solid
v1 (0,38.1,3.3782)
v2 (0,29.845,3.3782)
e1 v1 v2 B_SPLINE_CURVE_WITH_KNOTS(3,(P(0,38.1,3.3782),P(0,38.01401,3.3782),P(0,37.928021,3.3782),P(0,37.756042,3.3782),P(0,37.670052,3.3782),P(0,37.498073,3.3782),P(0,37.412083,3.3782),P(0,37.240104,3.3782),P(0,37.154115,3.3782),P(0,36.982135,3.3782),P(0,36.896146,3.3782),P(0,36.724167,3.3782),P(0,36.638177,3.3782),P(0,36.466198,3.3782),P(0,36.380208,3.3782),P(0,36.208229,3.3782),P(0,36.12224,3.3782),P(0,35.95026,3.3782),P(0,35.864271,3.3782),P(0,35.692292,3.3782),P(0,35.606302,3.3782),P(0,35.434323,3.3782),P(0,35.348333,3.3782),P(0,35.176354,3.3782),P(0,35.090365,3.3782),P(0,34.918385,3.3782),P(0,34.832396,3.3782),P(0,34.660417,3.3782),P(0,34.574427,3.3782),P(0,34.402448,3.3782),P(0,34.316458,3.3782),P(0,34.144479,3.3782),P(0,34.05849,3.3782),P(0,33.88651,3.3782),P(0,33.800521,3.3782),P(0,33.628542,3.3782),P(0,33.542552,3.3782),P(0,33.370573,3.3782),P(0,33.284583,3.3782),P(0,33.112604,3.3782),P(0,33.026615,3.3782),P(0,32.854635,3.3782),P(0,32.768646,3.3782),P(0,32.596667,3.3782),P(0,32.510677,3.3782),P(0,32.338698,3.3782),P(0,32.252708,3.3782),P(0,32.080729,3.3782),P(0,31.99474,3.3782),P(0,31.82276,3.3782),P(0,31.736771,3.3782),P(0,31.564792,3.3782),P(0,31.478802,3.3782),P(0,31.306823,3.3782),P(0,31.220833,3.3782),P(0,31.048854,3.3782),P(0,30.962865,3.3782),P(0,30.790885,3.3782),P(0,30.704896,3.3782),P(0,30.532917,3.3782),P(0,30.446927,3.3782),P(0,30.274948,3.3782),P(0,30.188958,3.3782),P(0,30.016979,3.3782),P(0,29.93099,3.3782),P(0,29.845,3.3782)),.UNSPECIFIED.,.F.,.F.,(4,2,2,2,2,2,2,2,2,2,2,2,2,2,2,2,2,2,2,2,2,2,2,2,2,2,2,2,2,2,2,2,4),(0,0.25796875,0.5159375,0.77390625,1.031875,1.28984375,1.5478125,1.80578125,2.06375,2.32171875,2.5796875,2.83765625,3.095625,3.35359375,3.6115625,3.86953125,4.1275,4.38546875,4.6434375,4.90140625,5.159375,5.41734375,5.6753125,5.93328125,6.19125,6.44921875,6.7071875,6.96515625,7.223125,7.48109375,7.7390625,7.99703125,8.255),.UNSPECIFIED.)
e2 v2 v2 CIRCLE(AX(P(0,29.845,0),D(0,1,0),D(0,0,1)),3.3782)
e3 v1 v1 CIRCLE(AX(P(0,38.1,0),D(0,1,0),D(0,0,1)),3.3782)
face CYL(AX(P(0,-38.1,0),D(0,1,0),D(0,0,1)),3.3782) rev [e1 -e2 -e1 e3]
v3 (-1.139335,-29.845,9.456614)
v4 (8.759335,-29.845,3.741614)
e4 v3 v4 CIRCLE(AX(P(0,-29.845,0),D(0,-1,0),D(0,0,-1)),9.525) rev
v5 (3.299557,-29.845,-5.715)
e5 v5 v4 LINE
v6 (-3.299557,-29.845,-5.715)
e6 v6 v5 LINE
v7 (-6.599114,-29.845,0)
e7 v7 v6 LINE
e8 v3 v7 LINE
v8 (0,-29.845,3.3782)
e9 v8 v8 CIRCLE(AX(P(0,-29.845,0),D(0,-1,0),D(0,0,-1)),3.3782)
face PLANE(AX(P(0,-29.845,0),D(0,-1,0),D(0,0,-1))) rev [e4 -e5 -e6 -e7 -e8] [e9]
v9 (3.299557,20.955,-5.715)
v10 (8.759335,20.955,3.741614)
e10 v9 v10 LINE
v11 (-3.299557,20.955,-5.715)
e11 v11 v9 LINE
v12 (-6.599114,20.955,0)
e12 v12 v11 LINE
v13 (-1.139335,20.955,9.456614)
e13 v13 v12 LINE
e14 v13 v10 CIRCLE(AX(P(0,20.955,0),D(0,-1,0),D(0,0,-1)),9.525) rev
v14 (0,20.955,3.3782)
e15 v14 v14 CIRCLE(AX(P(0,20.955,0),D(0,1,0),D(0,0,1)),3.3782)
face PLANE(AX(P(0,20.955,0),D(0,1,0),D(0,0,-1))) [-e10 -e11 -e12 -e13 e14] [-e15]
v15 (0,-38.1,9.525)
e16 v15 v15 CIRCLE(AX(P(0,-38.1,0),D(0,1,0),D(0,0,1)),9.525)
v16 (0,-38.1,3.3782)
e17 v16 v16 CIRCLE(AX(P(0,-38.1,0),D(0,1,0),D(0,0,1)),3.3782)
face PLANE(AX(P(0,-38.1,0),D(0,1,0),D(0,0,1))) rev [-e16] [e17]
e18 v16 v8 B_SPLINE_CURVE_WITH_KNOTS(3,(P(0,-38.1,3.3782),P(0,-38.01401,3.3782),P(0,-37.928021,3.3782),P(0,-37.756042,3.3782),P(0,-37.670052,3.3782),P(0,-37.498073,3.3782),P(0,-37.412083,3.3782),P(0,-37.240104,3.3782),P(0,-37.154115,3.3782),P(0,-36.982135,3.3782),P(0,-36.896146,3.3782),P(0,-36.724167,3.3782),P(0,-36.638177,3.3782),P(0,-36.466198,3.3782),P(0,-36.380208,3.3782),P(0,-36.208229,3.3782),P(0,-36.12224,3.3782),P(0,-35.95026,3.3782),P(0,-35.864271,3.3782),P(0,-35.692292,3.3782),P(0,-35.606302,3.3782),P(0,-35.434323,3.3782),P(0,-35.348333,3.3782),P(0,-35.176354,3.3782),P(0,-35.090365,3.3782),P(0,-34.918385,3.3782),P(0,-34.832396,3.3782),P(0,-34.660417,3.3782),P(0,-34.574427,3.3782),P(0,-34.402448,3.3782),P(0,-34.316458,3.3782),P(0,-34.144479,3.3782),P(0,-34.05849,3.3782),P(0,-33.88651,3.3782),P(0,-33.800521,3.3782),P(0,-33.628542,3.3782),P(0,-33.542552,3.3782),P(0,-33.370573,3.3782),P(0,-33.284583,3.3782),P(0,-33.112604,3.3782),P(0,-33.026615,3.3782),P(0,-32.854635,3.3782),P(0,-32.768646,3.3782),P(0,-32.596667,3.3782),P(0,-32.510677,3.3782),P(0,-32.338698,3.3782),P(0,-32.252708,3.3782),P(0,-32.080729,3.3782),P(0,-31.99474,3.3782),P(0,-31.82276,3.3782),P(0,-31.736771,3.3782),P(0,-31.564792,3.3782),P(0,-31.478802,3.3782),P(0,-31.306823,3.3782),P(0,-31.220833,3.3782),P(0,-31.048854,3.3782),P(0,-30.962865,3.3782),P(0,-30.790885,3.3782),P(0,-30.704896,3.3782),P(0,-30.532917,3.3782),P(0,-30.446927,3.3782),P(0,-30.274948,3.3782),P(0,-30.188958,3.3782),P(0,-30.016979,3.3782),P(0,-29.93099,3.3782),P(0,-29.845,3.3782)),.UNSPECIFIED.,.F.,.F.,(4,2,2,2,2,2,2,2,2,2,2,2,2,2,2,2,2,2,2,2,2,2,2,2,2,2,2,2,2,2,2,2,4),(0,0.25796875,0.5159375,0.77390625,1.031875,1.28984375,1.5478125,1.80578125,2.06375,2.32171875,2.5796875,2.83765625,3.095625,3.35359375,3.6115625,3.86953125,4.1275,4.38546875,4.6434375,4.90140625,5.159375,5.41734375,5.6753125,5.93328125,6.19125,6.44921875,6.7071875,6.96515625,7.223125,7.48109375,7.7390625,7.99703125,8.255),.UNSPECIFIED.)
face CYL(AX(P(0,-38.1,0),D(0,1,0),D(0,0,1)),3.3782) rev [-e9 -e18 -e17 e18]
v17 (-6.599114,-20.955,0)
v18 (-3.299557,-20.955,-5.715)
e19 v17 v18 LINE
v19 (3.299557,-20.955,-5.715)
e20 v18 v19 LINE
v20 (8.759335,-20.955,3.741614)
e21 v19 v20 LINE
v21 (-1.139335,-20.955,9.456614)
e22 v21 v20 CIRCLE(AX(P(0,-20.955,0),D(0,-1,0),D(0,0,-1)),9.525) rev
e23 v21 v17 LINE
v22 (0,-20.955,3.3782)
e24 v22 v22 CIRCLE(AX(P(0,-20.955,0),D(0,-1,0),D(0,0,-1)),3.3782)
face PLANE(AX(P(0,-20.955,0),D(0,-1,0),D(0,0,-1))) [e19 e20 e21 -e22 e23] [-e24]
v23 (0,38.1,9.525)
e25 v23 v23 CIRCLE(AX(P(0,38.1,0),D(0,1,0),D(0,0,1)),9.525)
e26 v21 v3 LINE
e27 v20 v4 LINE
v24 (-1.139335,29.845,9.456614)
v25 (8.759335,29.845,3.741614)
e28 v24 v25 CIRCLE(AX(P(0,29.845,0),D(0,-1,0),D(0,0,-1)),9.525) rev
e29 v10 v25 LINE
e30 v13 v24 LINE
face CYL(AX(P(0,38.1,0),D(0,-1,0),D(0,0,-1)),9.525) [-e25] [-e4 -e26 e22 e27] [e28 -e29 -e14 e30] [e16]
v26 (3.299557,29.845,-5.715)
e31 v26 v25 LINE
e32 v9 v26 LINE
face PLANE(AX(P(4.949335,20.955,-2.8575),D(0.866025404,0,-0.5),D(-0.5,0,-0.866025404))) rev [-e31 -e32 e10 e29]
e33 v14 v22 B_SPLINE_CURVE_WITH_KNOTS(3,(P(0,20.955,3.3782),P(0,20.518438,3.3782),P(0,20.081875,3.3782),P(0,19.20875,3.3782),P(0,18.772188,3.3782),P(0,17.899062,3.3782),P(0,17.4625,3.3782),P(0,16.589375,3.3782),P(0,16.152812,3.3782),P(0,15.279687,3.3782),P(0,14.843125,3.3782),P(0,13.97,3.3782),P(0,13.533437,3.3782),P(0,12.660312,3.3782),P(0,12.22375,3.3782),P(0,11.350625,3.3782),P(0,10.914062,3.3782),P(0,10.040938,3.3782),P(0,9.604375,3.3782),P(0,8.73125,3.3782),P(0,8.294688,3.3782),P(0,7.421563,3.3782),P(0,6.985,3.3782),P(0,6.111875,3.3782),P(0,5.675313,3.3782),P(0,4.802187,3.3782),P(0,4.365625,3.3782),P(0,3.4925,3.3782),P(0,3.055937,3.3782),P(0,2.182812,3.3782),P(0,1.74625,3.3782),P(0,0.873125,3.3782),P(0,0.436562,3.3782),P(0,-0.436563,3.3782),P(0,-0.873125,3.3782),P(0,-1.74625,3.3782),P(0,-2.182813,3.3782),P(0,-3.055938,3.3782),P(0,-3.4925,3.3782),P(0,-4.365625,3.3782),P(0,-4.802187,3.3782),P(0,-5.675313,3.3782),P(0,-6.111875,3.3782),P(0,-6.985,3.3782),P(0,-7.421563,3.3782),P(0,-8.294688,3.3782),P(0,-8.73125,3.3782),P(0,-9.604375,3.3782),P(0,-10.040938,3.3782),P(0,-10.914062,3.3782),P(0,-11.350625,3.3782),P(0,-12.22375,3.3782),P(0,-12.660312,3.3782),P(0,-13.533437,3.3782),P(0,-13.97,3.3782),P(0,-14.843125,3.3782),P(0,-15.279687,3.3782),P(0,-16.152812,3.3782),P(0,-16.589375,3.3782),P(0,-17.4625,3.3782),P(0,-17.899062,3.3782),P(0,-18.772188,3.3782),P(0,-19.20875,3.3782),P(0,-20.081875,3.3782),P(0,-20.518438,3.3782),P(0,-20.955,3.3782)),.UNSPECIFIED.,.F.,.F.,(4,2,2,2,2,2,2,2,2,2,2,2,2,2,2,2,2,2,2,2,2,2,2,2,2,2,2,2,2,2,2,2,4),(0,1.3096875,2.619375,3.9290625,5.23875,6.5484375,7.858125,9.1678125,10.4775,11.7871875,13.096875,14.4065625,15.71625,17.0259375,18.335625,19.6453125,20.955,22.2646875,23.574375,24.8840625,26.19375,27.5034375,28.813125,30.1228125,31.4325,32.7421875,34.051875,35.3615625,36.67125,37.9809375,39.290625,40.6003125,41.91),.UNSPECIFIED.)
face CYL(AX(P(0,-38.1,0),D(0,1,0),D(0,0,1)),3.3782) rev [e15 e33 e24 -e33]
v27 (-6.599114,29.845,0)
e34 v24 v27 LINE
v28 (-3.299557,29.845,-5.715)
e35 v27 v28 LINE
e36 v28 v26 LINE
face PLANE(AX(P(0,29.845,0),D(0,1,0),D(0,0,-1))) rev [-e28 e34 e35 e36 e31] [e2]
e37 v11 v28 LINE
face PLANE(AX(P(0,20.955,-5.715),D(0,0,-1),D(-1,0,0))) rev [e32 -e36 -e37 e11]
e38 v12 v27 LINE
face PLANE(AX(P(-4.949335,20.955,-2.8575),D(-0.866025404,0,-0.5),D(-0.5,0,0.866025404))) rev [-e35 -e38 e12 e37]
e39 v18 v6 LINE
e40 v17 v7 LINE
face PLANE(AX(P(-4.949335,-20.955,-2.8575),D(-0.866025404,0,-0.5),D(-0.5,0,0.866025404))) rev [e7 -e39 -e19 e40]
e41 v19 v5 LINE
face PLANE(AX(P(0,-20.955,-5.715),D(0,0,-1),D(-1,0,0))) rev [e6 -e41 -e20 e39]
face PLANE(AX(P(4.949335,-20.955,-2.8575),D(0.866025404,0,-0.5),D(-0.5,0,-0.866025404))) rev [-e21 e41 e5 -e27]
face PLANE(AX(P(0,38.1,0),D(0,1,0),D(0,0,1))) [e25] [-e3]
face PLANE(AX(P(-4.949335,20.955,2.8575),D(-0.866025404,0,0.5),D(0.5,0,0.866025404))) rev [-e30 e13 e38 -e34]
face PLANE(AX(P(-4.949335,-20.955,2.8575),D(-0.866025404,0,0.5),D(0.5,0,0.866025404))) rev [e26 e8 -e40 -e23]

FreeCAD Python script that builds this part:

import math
import FreeCAD as App
import Part
import Sketcher
from FreeCAD import Vector
Q = App.Units.Quantity

doc = App.newDocument("Part")
body = doc.addObject("PartDesign::Body", "Body")

# Sketch on XZ plane
sketch1 = body.newObject("Sketcher::SketchObject", "Sketch")
sketch1.AttachmentSupport = (doc.getObject("XZ_Plane"), [""])
sketch1.MapMode = "FlatFace"
sketch1.addGeometry(Part.Circle(Vector(0, 0, 0), Vector(0, 0, 1), 10), False)
sketch1.addConstraint(Sketcher.Constraint("Coincident", 0, 3, -1, 1))
sketch1.addConstraint(Sketcher.Constraint("Diameter", 0, Q("0.75 in")))
pad1 = body.newObject("PartDesign::Pad", "Pad")
pad1.Profile = sketch1
pad1.Length = Q("3 in")
pad1.Midplane = True

# Sketch on XZ plane
sketch2 = body.newObject("Sketcher::SketchObject", "Sketch001")
sketch2.AttachmentSupport = (doc.getObject("XZ_Plane"), [""])
sketch2.MapMode = "FlatFace"
sketch2.AttachmentOffset = App.Placement(Vector(0, 0, 1 * 25.4), App.Rotation())
sketch2.addGeometry(Part.LineSegment(Vector(3.3, -5.7, 0), Vector(6.6, 0, 0)), False)
sketch2.addGeometry(Part.LineSegment(Vector(6.6, 0, 0), Vector(8.8, 3.7, 0)), False)
sketch2.addGeometry(Part.ArcOfCircle(Part.Circle(Vector(0, 0, 0), Vector(0, 0, 1), 9.5), math.radians(23), math.radians(97)), False)
sketch2.addGeometry(Part.LineSegment(Vector(-1.1, 9.5, 0), Vector(-3.3, 5.7, 0)), False)
sketch2.addGeometry(Part.LineSegment(Vector(-3.3, 5.7, 0), Vector(-6.6, 0, 0)), False)
sketch2.addGeometry(Part.LineSegment(Vector(-6.6, 0, 0), Vector(-3.3, -5.7, 0)), False)
sketch2.addGeometry(Part.LineSegment(Vector(-3.3, -5.7, 0), Vector(3.3, -5.7, 0)), False)
sketch2.addConstraint(Sketcher.Constraint("Coincident", 0, 2, 1, 1))
sketch2.addConstraint(Sketcher.Constraint("Coincident", 1, 2, 2, 1))
sketch2.addConstraint(Sketcher.Constraint("Coincident", 2, 2, 3, 1))
sketch2.addConstraint(Sketcher.Constraint("Coincident", 3, 2, 4, 1))
sketch2.addConstraint(Sketcher.Constraint("Coincident", 4, 2, 5, 1))
sketch2.addConstraint(Sketcher.Constraint("Coincident", 5, 2, 6, 1))
sketch2.addConstraint(Sketcher.Constraint("Coincident", 6, 2, 0, 1))
sketch2.addConstraint(Sketcher.Constraint("Horizontal", 6))
sketch2.addConstraint(Sketcher.Constraint("Coincident", 2, 3, -1, 1))
sketch2.addConstraint(Sketcher.Constraint("Symmetric", 0, 2, 4, 2, -1, 1))
sketch2.addConstraint(Sketcher.Constraint("Symmetric", 3, 2, 6, 2, -1, 1))
sketch2.addConstraint(Sketcher.Constraint("PointOnObject", 0, 2, -1))
sketch2.addConstraint(Sketcher.Constraint("Parallel", 0, 1))
sketch2.addConstraint(Sketcher.Constraint("Parallel", 1, 3))
sketch2.addConstraint(Sketcher.Constraint("Vertical", 3, 2, 5, 2))
sketch2.addConstraint(Sketcher.Constraint("Equal", 1, 3))
sketch2.addConstraint(Sketcher.Constraint("Angle", 0, Q("60 deg")))
sketch2.addConstraint(Sketcher.Constraint("Radius", 2, Q("0.375 in")))
sketch2.addConstraint(Sketcher.Constraint("DistanceY", 5, 2, 3, 2, Q("0.45 in")))
pocket1 = body.newObject("PartDesign::Pocket", "Pocket")
pocket1.Profile = sketch2
pocket1.Length = Q("0.35 in")
pocket1.Midplane = True
doc.recompute()

mirrored = body.newObject("PartDesign::Mirrored", "Mirrored")
mirrored.Originals = [pocket1]
mirrored.MirrorPlane = (doc.getObject("XZ_Plane"), [""])
body.Tip = mirrored

# Sketch on XZ plane
sketch3 = body.newObject("Sketcher::SketchObject", "Sketch002")
sketch3.AttachmentSupport = (doc.getObject("XZ_Plane"), [""])
sketch3.MapMode = "FlatFace"
sketch3.AttachmentOffset = App.Placement(Vector(0, 0, -1.5 * 25.4), App.Rotation())
sketch3.addGeometry(Part.Circle(Vector(0, 0, 0), Vector(0, 0, 1), 3.4), False)
sketch3.addConstraint(Sketcher.Constraint("Coincident", 0, 3, -1, 1))
sketch3.addConstraint(Sketcher.Constraint("Diameter", 0, Q("0.266 in")))
pocket2 = body.newObject("PartDesign::Pocket", "Pocket001")
pocket2.Profile = sketch3
pocket2.Type = "ThroughAll"
pocket2.Reversed = True

doc.recompute()
